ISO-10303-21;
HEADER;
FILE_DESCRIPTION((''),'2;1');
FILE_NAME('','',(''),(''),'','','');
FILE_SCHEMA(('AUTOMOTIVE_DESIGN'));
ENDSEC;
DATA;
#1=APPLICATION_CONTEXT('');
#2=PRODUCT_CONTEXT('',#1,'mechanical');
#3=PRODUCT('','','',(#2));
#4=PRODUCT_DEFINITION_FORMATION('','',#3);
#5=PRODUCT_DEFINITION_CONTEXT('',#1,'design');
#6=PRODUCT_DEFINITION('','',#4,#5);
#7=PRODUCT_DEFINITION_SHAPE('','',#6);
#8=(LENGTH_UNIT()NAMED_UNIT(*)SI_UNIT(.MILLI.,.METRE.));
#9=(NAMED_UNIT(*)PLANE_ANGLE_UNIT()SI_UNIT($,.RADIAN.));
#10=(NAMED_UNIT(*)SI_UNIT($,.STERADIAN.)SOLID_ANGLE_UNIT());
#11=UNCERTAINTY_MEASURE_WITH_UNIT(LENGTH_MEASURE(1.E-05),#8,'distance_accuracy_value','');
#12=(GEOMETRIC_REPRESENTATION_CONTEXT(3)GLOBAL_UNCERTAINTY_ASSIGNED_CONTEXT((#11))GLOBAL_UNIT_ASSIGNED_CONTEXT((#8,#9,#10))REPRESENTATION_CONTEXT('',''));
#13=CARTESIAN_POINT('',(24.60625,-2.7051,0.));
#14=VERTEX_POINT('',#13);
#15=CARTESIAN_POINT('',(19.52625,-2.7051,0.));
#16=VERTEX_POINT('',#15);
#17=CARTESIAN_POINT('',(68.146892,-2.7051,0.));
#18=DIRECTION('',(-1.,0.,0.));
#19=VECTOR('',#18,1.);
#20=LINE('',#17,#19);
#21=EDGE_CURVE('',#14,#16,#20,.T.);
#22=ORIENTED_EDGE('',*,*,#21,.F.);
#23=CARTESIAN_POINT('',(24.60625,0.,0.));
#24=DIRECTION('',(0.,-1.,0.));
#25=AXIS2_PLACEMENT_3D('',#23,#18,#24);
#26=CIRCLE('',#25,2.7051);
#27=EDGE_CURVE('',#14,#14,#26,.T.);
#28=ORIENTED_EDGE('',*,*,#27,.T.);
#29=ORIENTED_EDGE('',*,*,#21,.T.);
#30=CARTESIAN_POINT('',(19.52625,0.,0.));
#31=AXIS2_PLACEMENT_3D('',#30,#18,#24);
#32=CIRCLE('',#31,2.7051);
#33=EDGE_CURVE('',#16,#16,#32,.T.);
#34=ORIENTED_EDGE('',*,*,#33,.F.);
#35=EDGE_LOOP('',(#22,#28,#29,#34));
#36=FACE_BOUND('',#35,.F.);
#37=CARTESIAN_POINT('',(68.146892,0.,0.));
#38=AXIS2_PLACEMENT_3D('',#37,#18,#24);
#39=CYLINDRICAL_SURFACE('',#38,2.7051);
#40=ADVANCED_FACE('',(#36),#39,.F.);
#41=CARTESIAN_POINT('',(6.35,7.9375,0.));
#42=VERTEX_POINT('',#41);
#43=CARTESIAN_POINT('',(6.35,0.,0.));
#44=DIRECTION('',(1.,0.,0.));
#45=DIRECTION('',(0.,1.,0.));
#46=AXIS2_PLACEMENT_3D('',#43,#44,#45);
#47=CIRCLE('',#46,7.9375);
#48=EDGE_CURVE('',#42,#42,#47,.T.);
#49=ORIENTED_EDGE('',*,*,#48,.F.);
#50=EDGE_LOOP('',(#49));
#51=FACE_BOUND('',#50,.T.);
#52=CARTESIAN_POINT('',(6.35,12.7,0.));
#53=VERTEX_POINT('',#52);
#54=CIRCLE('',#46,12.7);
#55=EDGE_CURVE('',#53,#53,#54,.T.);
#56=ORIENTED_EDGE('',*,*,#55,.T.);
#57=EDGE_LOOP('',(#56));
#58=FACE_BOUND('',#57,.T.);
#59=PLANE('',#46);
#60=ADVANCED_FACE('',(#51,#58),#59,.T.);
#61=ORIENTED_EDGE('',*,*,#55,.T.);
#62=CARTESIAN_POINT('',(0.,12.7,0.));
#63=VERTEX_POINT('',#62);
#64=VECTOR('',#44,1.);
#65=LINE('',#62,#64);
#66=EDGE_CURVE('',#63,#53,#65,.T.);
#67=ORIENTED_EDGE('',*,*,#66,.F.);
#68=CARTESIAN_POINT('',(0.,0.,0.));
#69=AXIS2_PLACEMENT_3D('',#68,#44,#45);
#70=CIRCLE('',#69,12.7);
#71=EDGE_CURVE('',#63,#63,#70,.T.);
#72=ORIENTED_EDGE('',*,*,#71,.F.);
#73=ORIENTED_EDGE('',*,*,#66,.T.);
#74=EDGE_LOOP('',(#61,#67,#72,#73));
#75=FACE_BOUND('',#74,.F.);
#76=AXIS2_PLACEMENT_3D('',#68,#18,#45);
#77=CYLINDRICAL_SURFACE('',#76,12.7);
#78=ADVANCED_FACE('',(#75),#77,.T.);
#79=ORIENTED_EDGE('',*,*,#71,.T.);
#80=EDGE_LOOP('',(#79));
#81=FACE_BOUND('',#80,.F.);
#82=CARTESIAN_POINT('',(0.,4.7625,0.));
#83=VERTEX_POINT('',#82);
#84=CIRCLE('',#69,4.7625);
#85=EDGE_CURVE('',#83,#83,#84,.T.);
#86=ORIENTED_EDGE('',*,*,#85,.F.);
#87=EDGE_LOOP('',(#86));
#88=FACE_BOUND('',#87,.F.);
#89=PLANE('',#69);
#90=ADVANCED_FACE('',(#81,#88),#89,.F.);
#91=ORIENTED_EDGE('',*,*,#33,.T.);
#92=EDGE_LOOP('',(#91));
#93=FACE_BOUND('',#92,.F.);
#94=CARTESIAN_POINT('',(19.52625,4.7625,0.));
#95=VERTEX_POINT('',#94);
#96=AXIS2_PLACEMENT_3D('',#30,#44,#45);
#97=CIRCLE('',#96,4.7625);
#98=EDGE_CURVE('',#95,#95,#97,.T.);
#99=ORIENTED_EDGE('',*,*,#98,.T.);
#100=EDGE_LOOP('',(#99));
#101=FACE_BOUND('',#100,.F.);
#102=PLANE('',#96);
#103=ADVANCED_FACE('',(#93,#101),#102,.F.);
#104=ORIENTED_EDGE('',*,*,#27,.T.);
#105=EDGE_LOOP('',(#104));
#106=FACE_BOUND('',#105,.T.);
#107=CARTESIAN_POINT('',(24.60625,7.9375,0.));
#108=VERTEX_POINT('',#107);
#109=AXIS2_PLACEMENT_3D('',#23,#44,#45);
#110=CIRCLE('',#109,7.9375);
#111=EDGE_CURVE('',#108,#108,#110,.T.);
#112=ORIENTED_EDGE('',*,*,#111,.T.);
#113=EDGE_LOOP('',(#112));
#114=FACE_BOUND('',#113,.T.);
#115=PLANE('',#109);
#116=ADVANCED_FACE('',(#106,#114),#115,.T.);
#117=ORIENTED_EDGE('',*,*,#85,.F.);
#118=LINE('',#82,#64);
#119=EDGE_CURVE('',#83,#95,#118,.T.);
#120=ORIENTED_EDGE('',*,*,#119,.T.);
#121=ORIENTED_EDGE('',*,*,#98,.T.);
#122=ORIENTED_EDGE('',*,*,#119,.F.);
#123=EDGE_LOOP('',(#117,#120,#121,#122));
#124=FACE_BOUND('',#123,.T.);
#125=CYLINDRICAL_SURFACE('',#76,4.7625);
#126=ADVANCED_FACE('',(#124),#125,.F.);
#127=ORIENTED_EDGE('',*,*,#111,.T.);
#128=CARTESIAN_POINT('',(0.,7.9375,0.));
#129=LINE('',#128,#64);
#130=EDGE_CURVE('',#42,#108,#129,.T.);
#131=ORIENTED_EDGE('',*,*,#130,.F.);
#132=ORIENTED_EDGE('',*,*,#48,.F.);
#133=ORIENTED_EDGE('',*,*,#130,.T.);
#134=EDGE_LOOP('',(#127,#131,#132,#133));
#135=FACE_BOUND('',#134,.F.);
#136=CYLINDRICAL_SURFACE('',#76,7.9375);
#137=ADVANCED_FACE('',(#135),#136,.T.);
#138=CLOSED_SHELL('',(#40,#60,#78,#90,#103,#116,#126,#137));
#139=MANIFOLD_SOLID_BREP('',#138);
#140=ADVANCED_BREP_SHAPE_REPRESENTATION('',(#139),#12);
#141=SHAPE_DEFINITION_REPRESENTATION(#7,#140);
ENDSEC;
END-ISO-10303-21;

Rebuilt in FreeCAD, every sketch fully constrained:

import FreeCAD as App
import Part
import Sketcher
from FreeCAD import Vector
Q = App.Units.Quantity

doc = App.newDocument("Part")
body = doc.addObject("PartDesign::Body", "Body")

sketch1 = body.newObject("Sketcher::SketchObject", "Sketch")
sketch1.AttachmentSupport = (doc.getObject("YZ_Plane"), [""])
sketch1.MapMode = "FlatFace"
sketch1.addGeometry(Part.Circle(Vector(0, 0, 0), Vector(0, 0, 1), 13), False)
sketch1.addGeometry(Part.Circle(Vector(0, 0, 0), Vector(0, 0, 1), 8), False)
sketch1.addConstraint(Sketcher.Constraint("Coincident", 0, 3, -1, 1))
sketch1.addConstraint(Sketcher.Constraint("Coincident", 1, 3, -1, 1))
sketch1.addConstraint(Sketcher.Constraint("Diameter", 0, Q("1 in")))
sketch1.addConstraint(Sketcher.Constraint("Diameter", 1, Q("0.625 in")))
pad1 = body.newObject("PartDesign::Pad", "Pad")
pad1.Profile = sketch1
pad1.Length = Q("0.25 in")

sketch2 = body.newObject("Sketcher::SketchObject", "Sketch001")
sketch2.AttachmentSupport = (doc.getObject("YZ_Plane"), [""])
sketch2.MapMode = "FlatFace"
sketch2.addGeometry(Part.Circle(Vector(0, 0, 0), Vector(0, 0, 1), 7.9), False)
sketch2.addGeometry(Part.Circle(Vector(0, 0, 0), Vector(0, 0, 1), 4.8), False)
sketch2.addConstraint(Sketcher.Constraint("Coincident", 0, 3, -1, 1))
sketch2.addConstraint(Sketcher.Constraint("Coincident", 1, 3, -1, 1))
sketch2.addConstraint(Sketcher.Constraint("Diameter", 0, Q("0.625 in")))
sketch2.addConstraint(Sketcher.Constraint("Diameter", 1, Q("0.375 in")))
pad2 = body.newObject("PartDesign::Pad", "Pad001")
pad2.Profile = sketch2
pad2.Length = Q("0.96875 in")

sketch3 = body.newObject("Sketcher::SketchObject", "Sketch002")
sketch3.AttachmentSupport = (doc.getObject("YZ_Plane"), [""])
sketch3.MapMode = "FlatFace"
sketch3.AttachmentOffset = App.Placement(Vector(0, 0, 0.96875 * 25.4), App.Rotation())
sketch3.addGeometry(Part.Circle(Vector(0, 0, 0), Vector(0, 0, 1), 4.8), False)
sketch3.addGeometry(Part.Circle(Vector(0, 0, 0), Vector(0, 0, 1), 3.2), False)
sketch3.addConstraint(Sketcher.Constraint("Coincident", 0, 3, -1, 1))
sketch3.addConstraint(Sketcher.Constraint("Coincident", 1, 3, -1, 1))
sketch3.addConstraint(Sketcher.Constraint("Diameter", 1, Q("0.25 in")))
sketch3.addConstraint(Sketcher.Constraint("Diameter", 0, Q("0.375 in")))
pad3 = body.newObject("PartDesign::Pad", "Pad002")
pad3.Profile = sketch3
pad3.Length = Q("0.2 in")
pad3.Reversed = True

sketch4 = body.newObject("Sketcher::SketchObject", "Sketch003")
sketch4.AttachmentSupport = (doc.getObject("YZ_Plane"), [""])
sketch4.MapMode = "FlatFace"
sketch4.AttachmentOffset = App.Placement(Vector(0, 0, 0.96875 * 25.4), App.Rotation())
sketch4.addGeometry(Part.Circle(Vector(0, 0, 0), Vector(0, 0, 1), 3.2), False)
sketch4.addConstraint(Sketcher.Constraint("Coincident", 0, 3, -1, 1))
sketch4.addConstraint(Sketcher.Constraint("Diameter", 0, Q("0.25 in")))
pad4 = body.newObject("PartDesign::Pad", "Pad003")
pad4.Profile = sketch4
pad4.Length = Q("0.2 in")
pad4.Reversed = True

sketch5 = body.newObject("Sketcher::SketchObject", "Sketch004")
sketch5.AttachmentSupport = (doc.getObject("YZ_Plane"), [""])
sketch5.MapMode = "FlatFace"
sketch5.AttachmentOffset = App.Placement(Vector(0, 0, 0.96875 * 25.4), App.Rotation())
sketch5.addGeometry(Part.Circle(Vector(0, 0, 0), Vector(0, 0, 1), 2.7), False)
sketch5.addConstraint(Sketcher.Constraint("Coincident", 0, 3, -1, 1))
sketch5.addConstraint(Sketcher.Constraint("Diameter", 0, Q("0.213 in")))
doc.recompute()
hole = body.newObject("PartDesign::Hole", "Hole")
hole.Profile = sketch5
hole.ThreadType = "None"
hole.Diameter = Q("0.213 in")
hole.DepthType = "ThroughAll"

doc.recompute()
